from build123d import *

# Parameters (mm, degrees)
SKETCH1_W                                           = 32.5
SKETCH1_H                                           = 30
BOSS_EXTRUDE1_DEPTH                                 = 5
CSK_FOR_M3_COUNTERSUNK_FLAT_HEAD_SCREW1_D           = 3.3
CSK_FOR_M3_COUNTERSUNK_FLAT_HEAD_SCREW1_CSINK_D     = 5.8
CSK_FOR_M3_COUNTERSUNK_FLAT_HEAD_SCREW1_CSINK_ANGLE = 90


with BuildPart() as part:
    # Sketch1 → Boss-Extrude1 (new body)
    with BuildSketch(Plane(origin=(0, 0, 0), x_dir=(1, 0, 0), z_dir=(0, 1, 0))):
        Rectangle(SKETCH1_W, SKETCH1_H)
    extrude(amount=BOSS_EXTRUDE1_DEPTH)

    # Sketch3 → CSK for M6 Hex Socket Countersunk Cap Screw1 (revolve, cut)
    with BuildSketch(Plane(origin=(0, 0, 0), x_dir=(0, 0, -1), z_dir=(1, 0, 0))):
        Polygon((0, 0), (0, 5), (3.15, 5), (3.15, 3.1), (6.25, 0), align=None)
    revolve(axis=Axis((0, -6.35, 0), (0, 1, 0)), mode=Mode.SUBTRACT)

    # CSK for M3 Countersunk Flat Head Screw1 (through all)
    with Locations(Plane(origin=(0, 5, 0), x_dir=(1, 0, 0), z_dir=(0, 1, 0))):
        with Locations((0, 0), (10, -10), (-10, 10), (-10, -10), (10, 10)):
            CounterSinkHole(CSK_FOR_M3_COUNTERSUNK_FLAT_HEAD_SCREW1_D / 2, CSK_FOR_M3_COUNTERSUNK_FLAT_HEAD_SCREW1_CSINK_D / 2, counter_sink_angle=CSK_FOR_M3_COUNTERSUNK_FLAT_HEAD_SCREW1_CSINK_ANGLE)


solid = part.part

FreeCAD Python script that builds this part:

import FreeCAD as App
import Part
import Sketcher
from FreeCAD import Vector
Q = App.Units.Quantity


def add_polygon(sketch, points):
    """Adds a closed chain of lines whose ends are joined by coincident constraints."""
    first, n = sketch.GeometryCount, len(points)
    for a, b in zip(points, points[1:] + points[:1]):
        sketch.addGeometry(Part.LineSegment(App.Vector(*a, 0), App.Vector(*b, 0)), False)
    for i in range(n):
        sketch.addConstraint(Sketcher.Constraint("Coincident", first + i, 2, first + (i + 1) % n, 1))

doc = App.newDocument("Part")
params = doc.addObject("Spreadsheet::Sheet", "Params")
for row, (alias, value) in enumerate([
    ("sketch1_height", "30 mm"),
    ("sketch1_width", "32.5 mm"),
    ("pad1_length", "5 mm"),
    ("sketch2_width", "5 mm"),
    ("sketch2_width2", "1.9 mm"),
    ("sketch2_height", "6.25 mm"),
    ("groove_angle", "360 deg"),
    ("sketch3_diameter", "3.3 mm"),
    ("hole_diameter", "3.3 mm"),
    ("hole_csink_diameter", "5.8 mm"),
], start=1):
    params.set(f"A{row}", alias)
    params.set(f"B{row}", "=" + value)
    params.setAlias(f"B{row}", alias)

body = doc.addObject("PartDesign::Body", "Body")

sketch1 = body.newObject("Sketcher::SketchObject", "Sketch")
sketch1.AttachmentSupport = (doc.getObject("XZ_Plane"), [""])
sketch1.MapMode = "FlatFace"
add_polygon(sketch1, [(-16, -15), (-16, 15), (16, 15), (16, -15)])
sketch1.addConstraint(Sketcher.Constraint("Vertical", 0))
sketch1.addConstraint(Sketcher.Constraint("Horizontal", 1))
sketch1.addConstraint(Sketcher.Constraint("Vertical", 2))
sketch1.addConstraint(Sketcher.Constraint("Horizontal", 3))
sketch1.addConstraint(Sketcher.Constraint("Symmetric", 0, 2, 2, 2, -1, 1))
sketch1.addConstraint(Sketcher.Constraint("DistanceY", 0, 1, 0, 2, Q("30 mm")))
sketch1.addConstraint(Sketcher.Constraint("DistanceX", 1, 1, 1, 2, Q("32.5 mm")))
sketch1.setExpression("Constraints[9]", "Params.sketch1_height")
sketch1.setExpression("Constraints[10]", "Params.sketch1_width")
pad1 = body.newObject("PartDesign::Pad", "Pad")
pad1.Profile = sketch1
pad1.setExpression("Length", "Params.pad1_length")
pad1.Reversed = True

sketch2 = body.newObject("Sketcher::SketchObject", "Sketch001")
sketch2.AttachmentSupport = (doc.getObject("YZ_Plane"), [""])
sketch2.MapMode = "FlatFace"
add_polygon(sketch2, [(5, 0), (0, 0), (0, -6.2), (3.1, -3.1), (5, -3.1)])
sketch2.addConstraint(Sketcher.Constraint("Horizontal", 0))
sketch2.addConstraint(Sketcher.Constraint("Vertical", 1))
sketch2.addConstraint(Sketcher.Constraint("Horizontal", 3))
sketch2.addConstraint(Sketcher.Constraint("Vertical", 4))
sketch2.addConstraint(Sketcher.Constraint("Coincident", 0, 2, -1, 1))
sketch2.addConstraint(Sketcher.Constraint("DistanceX", 0, 2, 0, 1, Q("5 mm")))
sketch2.addConstraint(Sketcher.Constraint("Angle", 2, Q("45 deg")))
sketch2.addConstraint(Sketcher.Constraint("DistanceX", 3, 1, 3, 2, Q("1.9 mm")))
sketch2.addConstraint(Sketcher.Constraint("DistanceY", 1, 2, 1, 1, Q("6.25 mm")))
sketch2.setExpression("Constraints[10]", "Params.sketch2_width")
sketch2.setExpression("Constraints[12]", "Params.sketch2_width2")
sketch2.setExpression("Constraints[13]", "Params.sketch2_height")
groove = body.newObject("PartDesign::Groove", "Groove")
groove.Profile = sketch2
groove.ReferenceAxis = (sketch2, ["H_Axis"])
groove.setExpression("Angle", "Params.groove_angle")

sketch3 = body.newObject("Sketcher::SketchObject", "Sketch002")
sketch3.AttachmentSupport = (doc.getObject("XZ_Plane"), [""])
sketch3.MapMode = "FlatFace"
sketch3.AttachmentOffset = App.Placement(Vector(0, 0, -5), App.Rotation())
sketch3.addGeometry(Part.Circle(Vector(0, 0, 0), Vector(0, 0, 1), 1.6), False)
sketch3.addGeometry(Part.Circle(Vector(10, 10, 0), Vector(0, 0, 1), 1.6), False)
sketch3.addGeometry(Part.Circle(Vector(-10, -10, 0), Vector(0, 0, 1), 1.6), False)
sketch3.addGeometry(Part.Circle(Vector(-10, 10, 0), Vector(0, 0, 1), 1.6), False)
sketch3.addGeometry(Part.Circle(Vector(10, -10, 0), Vector(0, 0, 1), 1.6), False)
sketch3.addConstraint(Sketcher.Constraint("Coincident", 0, 3, -1, 1))
sketch3.addConstraint(Sketcher.Constraint("Equal", 0, 1))
sketch3.addConstraint(Sketcher.Constraint("Equal", 1, 2))
sketch3.addConstraint(Sketcher.Constraint("Equal", 2, 3))
sketch3.addConstraint(Sketcher.Constraint("Equal", 3, 4))
sketch3.addConstraint(Sketcher.Constraint("Symmetric", 1, 3, 2, 3, -1, 1))
sketch3.addConstraint(Sketcher.Constraint("Symmetric", 3, 3, 4, 3, -1, 1))
sketch3.addConstraint(Sketcher.Constraint("Symmetric", 1, 3, 3, 3, -2))
sketch3.addConstraint(Sketcher.Constraint("Diameter", 0, Q("3.3 mm")))
sketch3.addConstraint(Sketcher.Constraint("DistanceX", -1, 1, 1, 3, Q("10 mm")))
sketch3.addConstraint(Sketcher.Constraint("DistanceY", -1, 1, 1, 3, Q("10 mm")))
sketch3.setExpression("Constraints[8]", "Params.sketch3_diameter")
doc.recompute()
hole = body.newObject("PartDesign::Hole", "Hole")
hole.Profile = sketch3
hole.ThreadType = "None"
hole.setExpression("Diameter", "Params.hole_diameter")
hole.DepthType = "ThroughAll"
hole.HoleCutType = "Countersink"
hole.setExpression("HoleCutDiameter", "Params.hole_csink_diameter")
hole.HoleCutCountersinkAngle = 90
hole.Reversed = True

doc.recompute()
